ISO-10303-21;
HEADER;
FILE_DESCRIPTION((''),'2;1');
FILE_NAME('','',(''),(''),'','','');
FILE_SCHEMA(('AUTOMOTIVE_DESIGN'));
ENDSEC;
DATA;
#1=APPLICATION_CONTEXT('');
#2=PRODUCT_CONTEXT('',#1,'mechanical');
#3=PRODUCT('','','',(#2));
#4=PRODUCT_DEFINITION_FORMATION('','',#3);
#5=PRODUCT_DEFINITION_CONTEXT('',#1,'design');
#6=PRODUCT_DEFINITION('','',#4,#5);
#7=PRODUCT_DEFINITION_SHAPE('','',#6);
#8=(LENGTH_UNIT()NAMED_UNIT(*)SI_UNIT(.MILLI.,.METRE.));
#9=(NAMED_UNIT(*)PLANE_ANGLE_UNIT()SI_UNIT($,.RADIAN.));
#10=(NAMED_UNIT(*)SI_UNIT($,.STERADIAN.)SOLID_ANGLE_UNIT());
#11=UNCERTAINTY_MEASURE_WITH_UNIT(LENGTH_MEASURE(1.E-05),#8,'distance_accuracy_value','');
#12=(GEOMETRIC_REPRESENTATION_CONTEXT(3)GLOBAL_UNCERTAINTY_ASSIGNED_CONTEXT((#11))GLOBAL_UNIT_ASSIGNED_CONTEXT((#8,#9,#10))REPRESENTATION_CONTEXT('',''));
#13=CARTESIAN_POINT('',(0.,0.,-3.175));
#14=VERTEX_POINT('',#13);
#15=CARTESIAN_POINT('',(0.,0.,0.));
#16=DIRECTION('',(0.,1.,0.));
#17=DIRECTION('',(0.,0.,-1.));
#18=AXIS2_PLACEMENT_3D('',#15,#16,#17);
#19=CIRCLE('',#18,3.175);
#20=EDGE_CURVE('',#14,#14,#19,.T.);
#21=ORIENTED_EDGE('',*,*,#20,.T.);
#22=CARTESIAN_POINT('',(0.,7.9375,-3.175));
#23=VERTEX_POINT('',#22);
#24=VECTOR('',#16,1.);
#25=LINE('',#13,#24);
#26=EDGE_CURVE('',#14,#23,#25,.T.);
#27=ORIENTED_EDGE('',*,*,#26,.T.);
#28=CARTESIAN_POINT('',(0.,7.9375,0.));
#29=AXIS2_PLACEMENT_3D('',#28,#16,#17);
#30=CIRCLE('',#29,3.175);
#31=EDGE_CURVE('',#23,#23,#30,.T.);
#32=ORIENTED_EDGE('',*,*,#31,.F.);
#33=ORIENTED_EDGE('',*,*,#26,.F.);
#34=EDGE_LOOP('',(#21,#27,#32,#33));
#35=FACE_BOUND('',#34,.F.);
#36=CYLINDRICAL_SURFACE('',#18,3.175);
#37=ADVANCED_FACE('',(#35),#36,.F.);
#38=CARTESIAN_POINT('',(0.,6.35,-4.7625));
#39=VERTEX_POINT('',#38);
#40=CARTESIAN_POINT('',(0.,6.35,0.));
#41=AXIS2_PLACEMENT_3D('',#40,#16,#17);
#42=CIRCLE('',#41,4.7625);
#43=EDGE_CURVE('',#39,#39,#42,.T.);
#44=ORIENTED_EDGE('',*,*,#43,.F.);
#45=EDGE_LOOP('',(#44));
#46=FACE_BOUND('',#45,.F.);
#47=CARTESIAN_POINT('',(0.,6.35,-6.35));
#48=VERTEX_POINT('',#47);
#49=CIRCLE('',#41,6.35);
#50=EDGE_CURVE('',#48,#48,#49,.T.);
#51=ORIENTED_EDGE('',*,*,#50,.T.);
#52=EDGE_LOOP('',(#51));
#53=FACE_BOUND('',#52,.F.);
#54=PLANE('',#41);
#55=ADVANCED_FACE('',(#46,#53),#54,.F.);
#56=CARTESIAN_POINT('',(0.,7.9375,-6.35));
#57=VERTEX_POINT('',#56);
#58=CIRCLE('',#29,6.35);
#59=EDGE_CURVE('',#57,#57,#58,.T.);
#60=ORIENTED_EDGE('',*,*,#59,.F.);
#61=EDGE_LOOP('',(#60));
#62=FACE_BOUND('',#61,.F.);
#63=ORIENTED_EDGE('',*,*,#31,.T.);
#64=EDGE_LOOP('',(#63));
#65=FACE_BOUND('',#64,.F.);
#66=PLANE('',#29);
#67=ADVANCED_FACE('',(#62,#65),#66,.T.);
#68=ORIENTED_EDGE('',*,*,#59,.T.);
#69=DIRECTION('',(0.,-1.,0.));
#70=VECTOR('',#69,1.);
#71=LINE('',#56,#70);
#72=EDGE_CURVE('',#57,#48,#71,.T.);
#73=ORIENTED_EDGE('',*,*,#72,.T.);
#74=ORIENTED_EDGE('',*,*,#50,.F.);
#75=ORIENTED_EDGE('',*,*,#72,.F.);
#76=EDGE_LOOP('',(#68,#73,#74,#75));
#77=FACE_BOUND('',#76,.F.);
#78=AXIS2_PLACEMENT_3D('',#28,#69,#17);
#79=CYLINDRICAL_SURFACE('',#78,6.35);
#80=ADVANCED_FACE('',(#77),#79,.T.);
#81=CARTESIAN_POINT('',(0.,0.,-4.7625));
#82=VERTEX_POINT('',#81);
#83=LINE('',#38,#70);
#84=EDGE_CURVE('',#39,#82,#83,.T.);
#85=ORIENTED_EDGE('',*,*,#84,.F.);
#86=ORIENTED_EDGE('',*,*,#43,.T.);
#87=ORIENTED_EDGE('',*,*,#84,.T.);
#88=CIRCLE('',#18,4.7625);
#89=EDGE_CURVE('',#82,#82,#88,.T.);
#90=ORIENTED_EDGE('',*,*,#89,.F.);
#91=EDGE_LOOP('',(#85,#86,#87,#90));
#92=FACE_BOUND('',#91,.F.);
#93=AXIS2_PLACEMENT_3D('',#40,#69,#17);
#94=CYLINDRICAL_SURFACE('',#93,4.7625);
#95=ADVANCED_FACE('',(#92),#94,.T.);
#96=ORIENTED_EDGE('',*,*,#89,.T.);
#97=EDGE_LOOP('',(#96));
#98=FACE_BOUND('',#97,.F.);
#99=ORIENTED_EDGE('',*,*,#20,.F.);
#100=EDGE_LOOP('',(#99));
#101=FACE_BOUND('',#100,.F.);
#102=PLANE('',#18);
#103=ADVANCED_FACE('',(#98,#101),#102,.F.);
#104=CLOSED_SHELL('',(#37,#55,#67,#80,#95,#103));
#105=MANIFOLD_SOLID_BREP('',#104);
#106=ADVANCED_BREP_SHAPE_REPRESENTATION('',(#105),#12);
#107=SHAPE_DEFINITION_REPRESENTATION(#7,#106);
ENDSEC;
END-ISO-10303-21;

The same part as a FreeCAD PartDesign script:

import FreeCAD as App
import Part
import Sketcher
from FreeCAD import Vector
Q = App.Units.Quantity


def add_polygon(sketch, points):
    """Adds a closed chain of lines whose ends are joined by coincident constraints."""
    first, n = sketch.GeometryCount, len(points)
    for a, b in zip(points, points[1:] + points[:1]):
        sketch.addGeometry(Part.LineSegment(App.Vector(*a, 0), App.Vector(*b, 0)), False)
    for i in range(n):
        sketch.addConstraint(Sketcher.Constraint("Coincident", first + i, 2, first + (i + 1) % n, 1))

doc = App.newDocument("Part")
params = doc.addObject("Spreadsheet::Sheet", "Params")
for row, (alias, value) in enumerate([
    ("sketch1_width", "0.25 in"),
    ("sketch1_width2", "0.3125 in"),
    ("revolution_angle", "360 deg"),
], start=1):
    params.set(f"A{row}", alias)
    params.set(f"B{row}", "=" + value)
    params.setAlias(f"B{row}", alias)

body = doc.addObject("PartDesign::Body", "Body")

sketch1 = body.newObject("Sketcher::SketchObject", "Sketch")
sketch1.AttachmentSupport = (doc.getObject("YZ_Plane"), [""])
sketch1.MapMode = "FlatFace"
add_polygon(sketch1, [(7.9, -3.2), (0, -3.2), (0, -4.8), (6.3, -4.8), (6.3, -6.3), (7.9, -6.3)])
sketch1.addConstraint(Sketcher.Constraint("Horizontal", 0))
sketch1.addConstraint(Sketcher.Constraint("Vertical", 1))
sketch1.addConstraint(Sketcher.Constraint("Horizontal", 2))
sketch1.addConstraint(Sketcher.Constraint("Vertical", 3))
sketch1.addConstraint(Sketcher.Constraint("Horizontal", 4))
sketch1.addConstraint(Sketcher.Constraint("Vertical", 5))
sketch1.addConstraint(Sketcher.Constraint("PointOnObject", 0, 2, -2))
sketch1.addConstraint(Sketcher.Constraint("Equal", 4, 1))
sketch1.addConstraint(Sketcher.Constraint("Equal", 1, 3))
sketch1.addConstraint(Sketcher.Constraint("DistanceX", 2, 1, 2, 2, Q("0.25 in")))
sketch1.addConstraint(Sketcher.Constraint("DistanceX", 0, 2, 0, 1, Q("0.3125 in")))
sketch1.addConstraint(Sketcher.Constraint("DistanceY", 3, 2, -1, 1, Q("0.25 in")))
sketch1.setExpression("Constraints[15]", "Params.sketch1_width")
sketch1.setExpression("Constraints[16]", "Params.sketch1_width2")
revolution = body.newObject("PartDesign::Revolution", "Revolution")
revolution.Profile = sketch1
revolution.ReferenceAxis = (sketch1, ["H_Axis"])
revolution.setExpression("Angle", "Params.revolution_angle")

doc.recompute()
